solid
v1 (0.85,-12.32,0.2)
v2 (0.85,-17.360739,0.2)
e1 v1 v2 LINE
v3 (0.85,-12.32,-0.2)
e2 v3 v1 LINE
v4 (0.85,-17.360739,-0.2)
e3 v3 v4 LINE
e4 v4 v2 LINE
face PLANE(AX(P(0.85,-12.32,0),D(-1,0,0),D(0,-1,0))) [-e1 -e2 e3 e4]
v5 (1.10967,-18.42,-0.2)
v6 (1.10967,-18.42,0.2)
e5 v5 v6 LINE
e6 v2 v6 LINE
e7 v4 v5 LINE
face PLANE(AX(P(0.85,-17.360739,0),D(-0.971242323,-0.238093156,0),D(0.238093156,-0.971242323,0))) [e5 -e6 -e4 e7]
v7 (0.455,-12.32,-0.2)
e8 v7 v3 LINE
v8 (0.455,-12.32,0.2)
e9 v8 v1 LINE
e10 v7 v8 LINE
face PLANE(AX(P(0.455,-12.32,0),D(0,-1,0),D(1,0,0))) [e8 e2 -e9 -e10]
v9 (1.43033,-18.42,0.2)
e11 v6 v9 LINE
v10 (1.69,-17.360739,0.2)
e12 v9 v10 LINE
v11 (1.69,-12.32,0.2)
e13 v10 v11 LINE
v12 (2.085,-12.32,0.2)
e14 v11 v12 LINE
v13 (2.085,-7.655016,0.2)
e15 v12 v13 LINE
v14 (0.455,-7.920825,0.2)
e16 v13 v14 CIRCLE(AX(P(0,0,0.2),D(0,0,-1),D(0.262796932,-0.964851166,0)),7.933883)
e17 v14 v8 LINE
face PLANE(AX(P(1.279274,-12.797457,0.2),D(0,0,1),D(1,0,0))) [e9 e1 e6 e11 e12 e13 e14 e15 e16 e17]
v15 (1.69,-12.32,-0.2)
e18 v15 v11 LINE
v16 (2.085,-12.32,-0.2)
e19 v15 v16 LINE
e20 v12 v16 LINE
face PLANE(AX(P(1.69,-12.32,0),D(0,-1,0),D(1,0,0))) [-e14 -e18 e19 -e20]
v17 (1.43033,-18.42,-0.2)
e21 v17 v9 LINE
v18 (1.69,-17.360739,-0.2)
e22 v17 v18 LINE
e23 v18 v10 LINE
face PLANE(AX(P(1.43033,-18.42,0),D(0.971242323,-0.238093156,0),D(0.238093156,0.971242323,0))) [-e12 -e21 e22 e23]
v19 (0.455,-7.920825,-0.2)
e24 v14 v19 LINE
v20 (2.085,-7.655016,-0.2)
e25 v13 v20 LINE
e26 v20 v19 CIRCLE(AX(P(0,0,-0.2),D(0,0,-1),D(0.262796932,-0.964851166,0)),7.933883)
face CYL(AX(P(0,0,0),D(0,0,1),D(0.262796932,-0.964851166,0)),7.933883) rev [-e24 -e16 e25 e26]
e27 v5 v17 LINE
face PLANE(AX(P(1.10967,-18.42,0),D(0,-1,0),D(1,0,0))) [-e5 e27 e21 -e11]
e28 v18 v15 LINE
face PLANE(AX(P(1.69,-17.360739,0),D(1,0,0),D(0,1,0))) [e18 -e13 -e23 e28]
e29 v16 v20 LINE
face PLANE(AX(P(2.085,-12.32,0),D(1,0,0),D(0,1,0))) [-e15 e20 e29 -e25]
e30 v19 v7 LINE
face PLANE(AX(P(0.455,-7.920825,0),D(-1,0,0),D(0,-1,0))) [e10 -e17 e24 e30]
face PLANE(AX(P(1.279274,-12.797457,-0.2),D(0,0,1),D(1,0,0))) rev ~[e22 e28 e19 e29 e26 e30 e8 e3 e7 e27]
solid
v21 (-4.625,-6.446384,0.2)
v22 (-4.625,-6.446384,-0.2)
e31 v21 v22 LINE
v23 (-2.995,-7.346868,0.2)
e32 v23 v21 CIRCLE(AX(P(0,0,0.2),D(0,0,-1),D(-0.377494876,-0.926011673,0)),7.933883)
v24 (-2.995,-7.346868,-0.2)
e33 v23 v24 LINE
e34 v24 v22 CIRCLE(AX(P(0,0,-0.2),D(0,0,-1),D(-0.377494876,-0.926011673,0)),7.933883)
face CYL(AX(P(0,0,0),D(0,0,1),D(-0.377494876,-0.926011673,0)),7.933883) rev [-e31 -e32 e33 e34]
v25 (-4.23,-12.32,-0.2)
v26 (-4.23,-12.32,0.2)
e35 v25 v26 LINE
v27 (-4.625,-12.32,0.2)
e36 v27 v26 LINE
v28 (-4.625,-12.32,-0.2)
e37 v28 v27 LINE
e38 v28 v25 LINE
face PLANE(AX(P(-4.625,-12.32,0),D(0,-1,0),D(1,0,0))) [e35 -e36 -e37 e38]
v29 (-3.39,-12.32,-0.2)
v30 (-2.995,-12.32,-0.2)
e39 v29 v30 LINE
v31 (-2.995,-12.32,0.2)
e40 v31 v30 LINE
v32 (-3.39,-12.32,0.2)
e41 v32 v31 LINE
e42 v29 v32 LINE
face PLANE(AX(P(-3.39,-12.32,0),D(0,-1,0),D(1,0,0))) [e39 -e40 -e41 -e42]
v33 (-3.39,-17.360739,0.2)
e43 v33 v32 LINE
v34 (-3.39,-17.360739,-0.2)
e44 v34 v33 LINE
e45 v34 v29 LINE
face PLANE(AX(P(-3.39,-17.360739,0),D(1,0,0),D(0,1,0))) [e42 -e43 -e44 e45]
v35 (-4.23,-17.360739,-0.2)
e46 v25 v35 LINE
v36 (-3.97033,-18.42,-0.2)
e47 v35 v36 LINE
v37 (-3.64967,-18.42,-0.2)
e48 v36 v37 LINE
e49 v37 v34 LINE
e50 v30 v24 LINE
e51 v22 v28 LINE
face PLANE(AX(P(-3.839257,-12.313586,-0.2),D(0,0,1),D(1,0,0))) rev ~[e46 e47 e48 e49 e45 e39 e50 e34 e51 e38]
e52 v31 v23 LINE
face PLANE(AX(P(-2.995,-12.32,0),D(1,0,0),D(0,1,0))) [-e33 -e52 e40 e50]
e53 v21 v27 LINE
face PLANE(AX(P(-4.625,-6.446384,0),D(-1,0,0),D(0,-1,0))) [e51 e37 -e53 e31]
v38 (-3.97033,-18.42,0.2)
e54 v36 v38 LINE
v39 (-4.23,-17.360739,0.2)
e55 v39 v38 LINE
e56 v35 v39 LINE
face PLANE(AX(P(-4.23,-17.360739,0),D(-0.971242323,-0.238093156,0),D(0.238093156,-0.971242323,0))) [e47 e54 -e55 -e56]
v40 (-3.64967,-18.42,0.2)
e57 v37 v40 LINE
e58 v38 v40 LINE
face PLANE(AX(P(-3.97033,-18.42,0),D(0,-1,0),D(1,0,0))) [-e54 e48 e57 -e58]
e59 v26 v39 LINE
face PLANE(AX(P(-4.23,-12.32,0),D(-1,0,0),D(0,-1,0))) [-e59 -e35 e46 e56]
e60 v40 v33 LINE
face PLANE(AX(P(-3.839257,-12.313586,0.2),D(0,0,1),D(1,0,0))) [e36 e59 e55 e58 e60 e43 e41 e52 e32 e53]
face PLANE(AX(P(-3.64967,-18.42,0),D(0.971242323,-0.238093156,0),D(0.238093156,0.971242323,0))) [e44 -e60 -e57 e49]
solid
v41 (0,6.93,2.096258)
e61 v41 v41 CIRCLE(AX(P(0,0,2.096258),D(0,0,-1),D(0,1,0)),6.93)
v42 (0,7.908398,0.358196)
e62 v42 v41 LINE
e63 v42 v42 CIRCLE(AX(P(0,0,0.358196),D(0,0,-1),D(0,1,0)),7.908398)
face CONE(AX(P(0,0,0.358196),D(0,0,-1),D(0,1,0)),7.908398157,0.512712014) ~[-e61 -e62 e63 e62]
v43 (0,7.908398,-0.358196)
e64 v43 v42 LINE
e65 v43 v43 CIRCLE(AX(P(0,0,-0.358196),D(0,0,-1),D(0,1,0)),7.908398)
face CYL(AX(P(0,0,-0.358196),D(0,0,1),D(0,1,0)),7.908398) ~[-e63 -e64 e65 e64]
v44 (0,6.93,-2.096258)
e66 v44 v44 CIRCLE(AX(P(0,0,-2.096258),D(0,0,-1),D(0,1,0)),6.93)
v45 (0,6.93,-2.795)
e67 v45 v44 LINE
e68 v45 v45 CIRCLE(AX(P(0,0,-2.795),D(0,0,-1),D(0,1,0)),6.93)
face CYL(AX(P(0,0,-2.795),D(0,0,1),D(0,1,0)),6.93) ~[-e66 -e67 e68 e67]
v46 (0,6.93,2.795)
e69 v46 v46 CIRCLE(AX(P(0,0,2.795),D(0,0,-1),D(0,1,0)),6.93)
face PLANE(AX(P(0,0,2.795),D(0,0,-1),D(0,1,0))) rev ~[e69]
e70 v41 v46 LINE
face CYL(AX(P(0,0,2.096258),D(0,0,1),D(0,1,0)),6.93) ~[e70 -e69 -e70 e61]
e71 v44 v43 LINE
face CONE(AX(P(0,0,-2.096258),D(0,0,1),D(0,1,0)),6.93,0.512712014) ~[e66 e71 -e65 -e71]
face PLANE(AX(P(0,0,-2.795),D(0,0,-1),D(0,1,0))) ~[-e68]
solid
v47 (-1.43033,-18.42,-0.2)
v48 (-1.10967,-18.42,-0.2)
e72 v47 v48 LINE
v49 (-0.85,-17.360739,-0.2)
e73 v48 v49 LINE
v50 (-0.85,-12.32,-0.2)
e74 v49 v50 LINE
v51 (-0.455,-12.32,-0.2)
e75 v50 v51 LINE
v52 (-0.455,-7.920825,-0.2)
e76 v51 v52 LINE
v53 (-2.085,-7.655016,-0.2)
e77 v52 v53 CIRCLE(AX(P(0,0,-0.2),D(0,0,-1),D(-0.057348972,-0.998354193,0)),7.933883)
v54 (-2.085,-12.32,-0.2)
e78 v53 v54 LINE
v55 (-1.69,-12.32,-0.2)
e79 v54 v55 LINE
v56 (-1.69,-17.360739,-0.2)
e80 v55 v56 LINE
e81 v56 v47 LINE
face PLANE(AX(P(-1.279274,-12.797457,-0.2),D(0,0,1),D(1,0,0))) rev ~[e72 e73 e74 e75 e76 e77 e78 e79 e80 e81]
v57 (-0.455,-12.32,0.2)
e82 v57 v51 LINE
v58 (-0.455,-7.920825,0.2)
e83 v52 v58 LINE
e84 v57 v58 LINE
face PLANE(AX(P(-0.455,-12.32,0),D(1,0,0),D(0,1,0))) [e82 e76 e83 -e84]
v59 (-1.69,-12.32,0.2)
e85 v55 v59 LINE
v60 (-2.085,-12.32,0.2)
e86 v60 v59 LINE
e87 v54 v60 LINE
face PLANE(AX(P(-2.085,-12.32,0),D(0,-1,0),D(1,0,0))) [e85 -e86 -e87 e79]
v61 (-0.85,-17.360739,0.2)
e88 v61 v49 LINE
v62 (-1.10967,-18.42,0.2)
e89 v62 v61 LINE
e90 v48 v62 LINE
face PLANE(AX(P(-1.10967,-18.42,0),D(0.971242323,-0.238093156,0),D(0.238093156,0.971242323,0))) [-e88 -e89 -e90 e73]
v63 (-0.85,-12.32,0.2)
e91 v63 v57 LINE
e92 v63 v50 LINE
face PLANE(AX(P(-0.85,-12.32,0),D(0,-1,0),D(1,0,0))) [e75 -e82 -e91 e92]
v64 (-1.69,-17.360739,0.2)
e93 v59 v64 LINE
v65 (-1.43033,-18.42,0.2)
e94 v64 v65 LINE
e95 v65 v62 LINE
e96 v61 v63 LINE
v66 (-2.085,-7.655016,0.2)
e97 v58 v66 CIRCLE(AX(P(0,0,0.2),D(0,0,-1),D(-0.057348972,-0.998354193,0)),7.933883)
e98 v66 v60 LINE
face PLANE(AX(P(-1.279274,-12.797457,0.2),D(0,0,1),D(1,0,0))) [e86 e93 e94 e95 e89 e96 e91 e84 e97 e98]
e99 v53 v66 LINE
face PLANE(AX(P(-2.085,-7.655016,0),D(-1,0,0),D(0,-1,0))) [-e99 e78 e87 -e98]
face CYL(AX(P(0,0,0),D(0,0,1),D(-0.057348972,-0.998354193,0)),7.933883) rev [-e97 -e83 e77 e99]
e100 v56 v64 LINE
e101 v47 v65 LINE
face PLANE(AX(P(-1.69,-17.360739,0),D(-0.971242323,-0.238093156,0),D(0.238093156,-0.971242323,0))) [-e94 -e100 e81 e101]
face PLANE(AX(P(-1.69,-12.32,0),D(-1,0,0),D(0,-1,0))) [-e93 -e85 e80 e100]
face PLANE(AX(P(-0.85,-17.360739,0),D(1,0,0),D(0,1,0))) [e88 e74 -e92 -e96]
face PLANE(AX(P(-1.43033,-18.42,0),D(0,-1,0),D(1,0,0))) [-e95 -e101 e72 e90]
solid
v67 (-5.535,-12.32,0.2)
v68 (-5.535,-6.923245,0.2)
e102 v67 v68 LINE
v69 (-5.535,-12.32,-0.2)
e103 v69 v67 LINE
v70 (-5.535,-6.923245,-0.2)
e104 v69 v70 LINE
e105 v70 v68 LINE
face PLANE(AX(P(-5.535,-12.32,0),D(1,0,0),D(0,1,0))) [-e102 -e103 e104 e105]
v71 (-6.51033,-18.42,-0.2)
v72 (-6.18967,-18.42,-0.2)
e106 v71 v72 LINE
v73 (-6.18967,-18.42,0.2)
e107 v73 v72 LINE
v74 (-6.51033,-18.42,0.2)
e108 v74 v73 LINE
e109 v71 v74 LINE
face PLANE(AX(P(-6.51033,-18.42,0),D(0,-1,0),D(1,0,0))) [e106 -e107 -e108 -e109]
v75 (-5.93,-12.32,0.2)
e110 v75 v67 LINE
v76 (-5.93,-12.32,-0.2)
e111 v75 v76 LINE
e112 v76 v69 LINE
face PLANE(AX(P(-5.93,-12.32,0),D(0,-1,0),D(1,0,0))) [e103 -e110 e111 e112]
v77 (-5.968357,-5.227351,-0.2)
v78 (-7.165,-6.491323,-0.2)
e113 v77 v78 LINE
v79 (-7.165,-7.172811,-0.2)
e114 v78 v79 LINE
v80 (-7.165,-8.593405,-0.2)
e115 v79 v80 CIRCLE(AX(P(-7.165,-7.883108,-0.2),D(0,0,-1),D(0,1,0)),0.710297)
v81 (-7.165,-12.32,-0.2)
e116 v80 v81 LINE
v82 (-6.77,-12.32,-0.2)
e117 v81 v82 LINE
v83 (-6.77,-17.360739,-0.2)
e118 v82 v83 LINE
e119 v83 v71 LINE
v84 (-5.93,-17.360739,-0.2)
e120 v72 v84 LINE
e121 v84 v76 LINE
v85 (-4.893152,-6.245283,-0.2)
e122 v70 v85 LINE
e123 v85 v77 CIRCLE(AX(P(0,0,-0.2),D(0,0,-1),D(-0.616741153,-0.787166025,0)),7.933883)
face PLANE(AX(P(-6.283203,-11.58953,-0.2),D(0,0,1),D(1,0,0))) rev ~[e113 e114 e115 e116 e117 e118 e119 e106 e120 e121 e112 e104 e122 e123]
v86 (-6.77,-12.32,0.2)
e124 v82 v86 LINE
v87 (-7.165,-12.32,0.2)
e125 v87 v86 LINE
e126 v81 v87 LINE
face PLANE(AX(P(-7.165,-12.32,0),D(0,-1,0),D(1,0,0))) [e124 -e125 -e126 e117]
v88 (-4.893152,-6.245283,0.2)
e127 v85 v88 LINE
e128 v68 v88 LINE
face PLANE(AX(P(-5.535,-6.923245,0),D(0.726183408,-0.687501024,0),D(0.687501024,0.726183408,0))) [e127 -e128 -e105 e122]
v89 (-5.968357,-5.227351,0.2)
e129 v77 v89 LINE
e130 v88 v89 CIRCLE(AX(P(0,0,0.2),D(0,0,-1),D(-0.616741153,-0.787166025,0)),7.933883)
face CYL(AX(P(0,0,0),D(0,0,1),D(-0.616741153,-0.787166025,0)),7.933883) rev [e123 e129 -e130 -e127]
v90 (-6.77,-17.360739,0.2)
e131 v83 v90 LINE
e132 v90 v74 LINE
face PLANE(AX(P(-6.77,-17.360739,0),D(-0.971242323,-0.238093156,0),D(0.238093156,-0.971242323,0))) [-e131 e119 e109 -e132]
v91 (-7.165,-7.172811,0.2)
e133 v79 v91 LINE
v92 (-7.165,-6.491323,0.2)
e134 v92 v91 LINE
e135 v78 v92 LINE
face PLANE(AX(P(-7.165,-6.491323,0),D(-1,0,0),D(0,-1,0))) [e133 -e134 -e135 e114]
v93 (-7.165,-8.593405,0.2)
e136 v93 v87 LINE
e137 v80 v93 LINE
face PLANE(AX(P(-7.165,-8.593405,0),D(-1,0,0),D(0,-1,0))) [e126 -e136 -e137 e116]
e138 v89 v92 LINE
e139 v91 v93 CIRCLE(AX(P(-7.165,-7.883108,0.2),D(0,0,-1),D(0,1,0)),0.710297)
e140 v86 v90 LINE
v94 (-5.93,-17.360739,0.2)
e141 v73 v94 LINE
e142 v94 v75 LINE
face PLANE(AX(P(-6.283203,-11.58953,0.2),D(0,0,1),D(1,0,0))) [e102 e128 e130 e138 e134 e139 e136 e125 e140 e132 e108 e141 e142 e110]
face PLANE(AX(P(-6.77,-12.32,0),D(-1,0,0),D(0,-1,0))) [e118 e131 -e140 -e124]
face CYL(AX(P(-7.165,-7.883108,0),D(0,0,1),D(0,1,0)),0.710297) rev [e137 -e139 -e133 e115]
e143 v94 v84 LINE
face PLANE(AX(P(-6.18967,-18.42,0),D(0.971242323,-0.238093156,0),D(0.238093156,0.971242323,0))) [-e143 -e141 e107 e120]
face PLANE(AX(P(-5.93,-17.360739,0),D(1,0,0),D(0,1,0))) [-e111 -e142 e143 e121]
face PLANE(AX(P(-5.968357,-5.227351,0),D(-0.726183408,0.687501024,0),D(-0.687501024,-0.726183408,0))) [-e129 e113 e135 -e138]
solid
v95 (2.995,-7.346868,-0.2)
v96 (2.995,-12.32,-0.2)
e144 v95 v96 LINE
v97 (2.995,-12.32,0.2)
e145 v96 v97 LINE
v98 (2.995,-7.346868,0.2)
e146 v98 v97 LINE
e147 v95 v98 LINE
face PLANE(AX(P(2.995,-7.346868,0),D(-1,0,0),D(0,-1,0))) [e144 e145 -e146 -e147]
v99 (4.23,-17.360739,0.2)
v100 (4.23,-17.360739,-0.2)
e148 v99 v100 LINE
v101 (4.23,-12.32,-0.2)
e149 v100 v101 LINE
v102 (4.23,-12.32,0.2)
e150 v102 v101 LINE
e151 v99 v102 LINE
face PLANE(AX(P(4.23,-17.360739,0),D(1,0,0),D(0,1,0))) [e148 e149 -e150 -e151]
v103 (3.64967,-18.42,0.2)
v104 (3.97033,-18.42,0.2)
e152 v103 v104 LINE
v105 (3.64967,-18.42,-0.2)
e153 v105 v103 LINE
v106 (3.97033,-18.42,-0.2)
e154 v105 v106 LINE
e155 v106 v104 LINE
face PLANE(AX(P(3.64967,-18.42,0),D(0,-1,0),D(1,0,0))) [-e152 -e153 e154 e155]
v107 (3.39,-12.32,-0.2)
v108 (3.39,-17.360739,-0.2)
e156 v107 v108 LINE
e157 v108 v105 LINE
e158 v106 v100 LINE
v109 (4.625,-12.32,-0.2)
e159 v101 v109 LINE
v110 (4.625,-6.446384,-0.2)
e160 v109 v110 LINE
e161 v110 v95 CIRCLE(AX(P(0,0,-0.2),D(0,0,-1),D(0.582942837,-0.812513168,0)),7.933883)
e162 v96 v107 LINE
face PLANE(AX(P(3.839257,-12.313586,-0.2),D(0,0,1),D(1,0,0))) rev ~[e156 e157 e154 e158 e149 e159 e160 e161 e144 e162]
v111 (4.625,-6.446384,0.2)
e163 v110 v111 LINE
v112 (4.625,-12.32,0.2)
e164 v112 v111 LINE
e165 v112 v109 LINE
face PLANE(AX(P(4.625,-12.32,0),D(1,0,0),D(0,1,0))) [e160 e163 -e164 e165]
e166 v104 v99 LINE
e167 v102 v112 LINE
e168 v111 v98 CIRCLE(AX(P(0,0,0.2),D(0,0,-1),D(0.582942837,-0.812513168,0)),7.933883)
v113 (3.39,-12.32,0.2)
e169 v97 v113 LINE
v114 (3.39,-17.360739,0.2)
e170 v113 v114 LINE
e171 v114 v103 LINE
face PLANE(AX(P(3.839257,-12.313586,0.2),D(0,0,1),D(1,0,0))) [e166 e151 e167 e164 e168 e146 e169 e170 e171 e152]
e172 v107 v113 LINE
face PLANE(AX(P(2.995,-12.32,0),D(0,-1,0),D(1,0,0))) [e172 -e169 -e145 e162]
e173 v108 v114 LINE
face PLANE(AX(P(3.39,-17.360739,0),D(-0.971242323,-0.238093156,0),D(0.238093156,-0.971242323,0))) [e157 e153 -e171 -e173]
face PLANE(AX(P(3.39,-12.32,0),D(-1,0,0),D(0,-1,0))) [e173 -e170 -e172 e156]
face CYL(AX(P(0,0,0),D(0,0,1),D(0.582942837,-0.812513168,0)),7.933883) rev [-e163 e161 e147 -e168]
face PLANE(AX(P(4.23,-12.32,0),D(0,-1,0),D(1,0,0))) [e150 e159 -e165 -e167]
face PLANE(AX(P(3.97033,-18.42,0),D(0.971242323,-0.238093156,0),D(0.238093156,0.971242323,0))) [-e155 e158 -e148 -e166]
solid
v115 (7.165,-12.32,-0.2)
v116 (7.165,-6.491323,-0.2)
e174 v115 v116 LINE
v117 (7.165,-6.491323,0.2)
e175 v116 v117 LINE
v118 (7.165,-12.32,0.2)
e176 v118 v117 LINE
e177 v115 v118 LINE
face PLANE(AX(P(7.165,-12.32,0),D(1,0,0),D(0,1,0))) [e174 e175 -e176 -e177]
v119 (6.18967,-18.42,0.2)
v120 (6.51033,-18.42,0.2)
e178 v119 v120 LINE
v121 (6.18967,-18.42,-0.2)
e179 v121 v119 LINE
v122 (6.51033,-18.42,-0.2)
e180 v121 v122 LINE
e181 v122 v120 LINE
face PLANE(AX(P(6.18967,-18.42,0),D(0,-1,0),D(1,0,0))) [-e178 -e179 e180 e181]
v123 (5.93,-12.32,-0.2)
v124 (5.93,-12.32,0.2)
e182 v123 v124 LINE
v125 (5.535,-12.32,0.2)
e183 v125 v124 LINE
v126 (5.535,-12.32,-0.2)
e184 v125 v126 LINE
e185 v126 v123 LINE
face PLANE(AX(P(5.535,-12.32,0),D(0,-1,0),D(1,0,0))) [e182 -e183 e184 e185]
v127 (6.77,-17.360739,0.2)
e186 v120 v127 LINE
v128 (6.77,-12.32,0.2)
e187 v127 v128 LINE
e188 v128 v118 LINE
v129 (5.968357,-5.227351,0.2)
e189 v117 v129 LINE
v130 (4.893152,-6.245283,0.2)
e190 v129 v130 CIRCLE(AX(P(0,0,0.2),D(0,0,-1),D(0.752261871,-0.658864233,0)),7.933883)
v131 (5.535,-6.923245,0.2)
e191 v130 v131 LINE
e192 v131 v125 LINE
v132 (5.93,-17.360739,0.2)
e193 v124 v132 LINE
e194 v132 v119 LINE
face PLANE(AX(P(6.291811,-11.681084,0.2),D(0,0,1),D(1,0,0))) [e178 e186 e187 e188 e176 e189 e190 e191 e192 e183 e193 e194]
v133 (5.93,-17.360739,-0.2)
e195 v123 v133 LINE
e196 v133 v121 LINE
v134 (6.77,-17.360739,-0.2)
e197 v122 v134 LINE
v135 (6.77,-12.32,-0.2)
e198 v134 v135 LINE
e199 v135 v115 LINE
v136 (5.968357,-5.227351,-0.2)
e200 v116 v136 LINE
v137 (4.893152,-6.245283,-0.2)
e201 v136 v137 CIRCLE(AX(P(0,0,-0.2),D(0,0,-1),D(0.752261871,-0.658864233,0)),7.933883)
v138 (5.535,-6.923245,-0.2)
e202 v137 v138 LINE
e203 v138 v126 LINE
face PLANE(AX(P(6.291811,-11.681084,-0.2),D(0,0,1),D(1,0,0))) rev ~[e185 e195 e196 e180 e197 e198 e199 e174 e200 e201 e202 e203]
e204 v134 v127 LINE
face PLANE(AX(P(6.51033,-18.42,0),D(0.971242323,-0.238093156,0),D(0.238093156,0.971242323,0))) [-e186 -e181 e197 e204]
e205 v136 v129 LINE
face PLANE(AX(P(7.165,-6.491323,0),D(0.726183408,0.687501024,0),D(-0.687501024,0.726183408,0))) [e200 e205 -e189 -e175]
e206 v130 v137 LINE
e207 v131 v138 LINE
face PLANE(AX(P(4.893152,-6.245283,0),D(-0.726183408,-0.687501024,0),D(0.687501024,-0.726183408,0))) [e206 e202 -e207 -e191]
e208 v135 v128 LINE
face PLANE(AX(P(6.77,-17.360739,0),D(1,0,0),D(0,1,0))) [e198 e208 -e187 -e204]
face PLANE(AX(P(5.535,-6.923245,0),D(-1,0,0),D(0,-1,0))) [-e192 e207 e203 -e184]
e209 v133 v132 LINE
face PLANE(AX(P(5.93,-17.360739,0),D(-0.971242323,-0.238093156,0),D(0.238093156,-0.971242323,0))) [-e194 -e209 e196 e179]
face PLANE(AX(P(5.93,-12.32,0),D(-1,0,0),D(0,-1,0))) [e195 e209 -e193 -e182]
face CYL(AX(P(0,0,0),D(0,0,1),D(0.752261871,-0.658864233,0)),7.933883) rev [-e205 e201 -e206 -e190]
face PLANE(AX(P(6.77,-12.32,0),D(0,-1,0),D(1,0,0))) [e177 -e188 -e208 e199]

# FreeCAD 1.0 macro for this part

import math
import FreeCAD as App
import Part
import Sketcher

V = App.Vector

doc = App.newDocument("Part")
body = doc.addObject("PartDesign::Body", "Body")

# Sketch on XY plane
sketch1 = doc.addObject("Sketcher::SketchObject", "Sketch")
body.addObject(sketch1)
sketch1.AttachmentSupport = (doc.XY_Plane, [""])
sketch1.MapMode = "FlatFace"
sketch1.addGeometry([
    Part.LineSegment(V(-5.93, -12.32, 0), V(-5.54, -12.32, 0)),  # 0
    Part.LineSegment(V(-5.54, -12.32, 0), V(-5.54, -6.92, 0)),  # 1
    Part.LineSegment(V(-5.54, -6.92, 0), V(-4.89, -6.25, 0)),  # 2
    Part.ArcOfCircle(Part.Circle(V(0, 0, 0), V(0, 0, 1), 7.93), math.radians(-138.79), math.radians(-128.08)),  # 3
    Part.LineSegment(V(-5.97, -5.23, 0), V(-7.17, -6.49, 0)),  # 4
    Part.LineSegment(V(-7.17, -6.49, 0), V(-7.17, -7.17, 0)),  # 5
    Part.ArcOfCircle(Part.Circle(V(-7.17, -7.88, 0), V(0, 0, 1), 0.71), math.radians(-90), math.radians(90)),  # 6
    Part.LineSegment(V(-7.17, -8.59, 0), V(-7.17, -12.32, 0)),  # 7
    Part.LineSegment(V(-7.17, -12.32, 0), V(-6.77, -12.32, 0)),  # 8
    Part.LineSegment(V(-6.77, -12.32, 0), V(-6.77, -17.36, 0)),  # 9
    Part.LineSegment(V(-6.77, -17.36, 0), V(-6.51, -18.42, 0)),  # 10
    Part.LineSegment(V(-6.51, -18.42, 0), V(-6.19, -18.42, 0)),  # 11
    Part.LineSegment(V(-6.19, -18.42, 0), V(-5.93, -17.36, 0)),  # 12
    Part.LineSegment(V(-5.93, -17.36, 0), V(-5.93, -12.32, 0)),  # 13
], False)
sketch1.addConstraint([
    Sketcher.Constraint("Coincident", 0, 2, 1, 1),
    Sketcher.Constraint("Coincident", 1, 2, 2, 1),
    Sketcher.Constraint("Coincident", 2, 2, 3, 2),
    Sketcher.Constraint("Coincident", 3, 1, 4, 1),
    Sketcher.Constraint("Coincident", 4, 2, 5, 1),
    Sketcher.Constraint("Coincident", 5, 2, 6, 2),
    Sketcher.Constraint("Coincident", 6, 1, 7, 1),
    Sketcher.Constraint("Coincident", 7, 2, 8, 1),
    Sketcher.Constraint("Coincident", 8, 2, 9, 1),
    Sketcher.Constraint("Coincident", 9, 2, 10, 1),
    Sketcher.Constraint("Coincident", 10, 2, 11, 1),
    Sketcher.Constraint("Coincident", 11, 2, 12, 1),
    Sketcher.Constraint("Coincident", 12, 2, 13, 1),
    Sketcher.Constraint("Coincident", 13, 2, 0, 1),
    Sketcher.Constraint("Horizontal", 0),
    Sketcher.Constraint("Vertical", 1),
    Sketcher.Constraint("Vertical", 5),
    Sketcher.Constraint("Vertical", 7),
    Sketcher.Constraint("Horizontal", 8),
    Sketcher.Constraint("Vertical", 9),
    Sketcher.Constraint("Horizontal", 11),
    Sketcher.Constraint("Vertical", 13),
    Sketcher.Constraint("Coincident", 3, 3, -1, 1),
    Sketcher.Constraint("Parallel", 2, 4),
    Sketcher.Constraint("Horizontal", 0, 2, 7, 2),
    Sketcher.Constraint("Horizontal", 9, 2, 12, 2),
    Sketcher.Constraint("Vertical", 6, 3, 4, 2),
    Sketcher.Constraint("Vertical", 5, 2, 6, 1),
    Sketcher.Constraint("Equal", 0, 8),
    Sketcher.Constraint("Equal", 10, 12),
    Sketcher.Constraint("DistanceY", 10, 2, 8, 2, 6.1),
    Sketcher.Constraint("DistanceX", 0, 1, 0, 2, 0.395),
    Sketcher.Constraint("DistanceY", 0, 2, -1, 1, 12.32),
    Sketcher.Constraint("DistanceX", 8, 2, -1, 1, 6.77),
    Sketcher.Constraint("DistanceX", 12, 2, -1, 1, 5.93),
    Sketcher.Constraint("Radius", 3, 7.933883),
    Sketcher.Constraint("Radius", 6, 0.710297),
    Sketcher.Constraint("DistanceX", 11, 1, 11, 2, 0.320659),
    Sketcher.Constraint("DistanceY", 9, 2, 9, 1, 5.040739),
    Sketcher.Constraint("Distance", 4, 1.740569),
    Sketcher.Constraint("DistanceY", 1, 1, 1, 2, 5.396755),
    Sketcher.Constraint("DistanceY", 5, 2, 5, 1, 0.681488),
    Sketcher.Constraint("DistanceY", 7, 2, 7, 1, 3.726595),
])
pad1 = doc.addObject("PartDesign::Pad", "Pad")
body.addObject(pad1)
pad1.Profile = sketch1
pad1.Type = "TwoLengths"
pad1.Length = 0.2
pad1.Length2 = 0.2
body2 = doc.addObject("PartDesign::Body", "Body001")

# Sketch on XY plane
sketch2 = doc.addObject("Sketcher::SketchObject", "Sketch001")
body2.addObject(sketch2)
sketch2.AttachmentSupport = (doc.getObject("XY_Plane001"), [""])
sketch2.MapMode = "FlatFace"
sketch2.addGeometry([
    Part.LineSegment(V(-4.62, -6.45, 0), V(-4.62, -12.32, 0)),  # 0
    Part.LineSegment(V(-4.62, -12.32, 0), V(-4.23, -12.32, 0)),  # 1
    Part.LineSegment(V(-4.23, -12.32, 0), V(-4.23, -17.36, 0)),  # 2
    Part.LineSegment(V(-4.23, -17.36, 0), V(-3.97, -18.42, 0)),  # 3
    Part.LineSegment(V(-3.97, -18.42, 0), V(-3.65, -18.42, 0)),  # 4
    Part.LineSegment(V(-3.65, -18.42, 0), V(-3.39, -17.36, 0)),  # 5
    Part.LineSegment(V(-3.39, -17.36, 0), V(-3.39, -12.32, 0)),  # 6
    Part.LineSegment(V(-3.39, -12.32, 0), V(-3, -12.32, 0)),  # 7
    Part.LineSegment(V(-3, -12.32, 0), V(-3, -7.35, 0)),  # 8
    Part.ArcOfCircle(Part.Circle(V(0, 0, 0), V(0, 0, 1), 7.93), math.radians(-125.66), math.radians(-112.18)),  # 9
], False)
sketch2.addConstraint([
    Sketcher.Constraint("Coincident", 0, 2, 1, 1),
    Sketcher.Constraint("Coincident", 1, 2, 2, 1),
    Sketcher.Constraint("Coincident", 2, 2, 3, 1),
    Sketcher.Constraint("Coincident", 3, 2, 4, 1),
    Sketcher.Constraint("Coincident", 4, 2, 5, 1),
    Sketcher.Constraint("Coincident", 5, 2, 6, 1),
    Sketcher.Constraint("Coincident", 6, 2, 7, 1),
    Sketcher.Constraint("Coincident", 7, 2, 8, 1),
    Sketcher.Constraint("Coincident", 8, 2, 9, 2),
    Sketcher.Constraint("Coincident", 9, 1, 0, 1),
    Sketcher.Constraint("Vertical", 0),
    Sketcher.Constraint("Horizontal", 1),
    Sketcher.Constraint("Vertical", 2),
    Sketcher.Constraint("Horizontal", 4),
    Sketcher.Constraint("Vertical", 6),
    Sketcher.Constraint("Horizontal", 7),
    Sketcher.Constraint("Vertical", 8),
    Sketcher.Constraint("Coincident", 9, 3, -1, 1),
    Sketcher.Constraint("Horizontal", 2, 2, 5, 2),
    Sketcher.Constraint("Horizontal", 1, 2, 6, 2),
    Sketcher.Constraint("Equal", 1, 7),
    Sketcher.Constraint("Equal", 3, 5),
    Sketcher.Constraint("DistanceY", 3, 2, 1, 2, 6.1),
    Sketcher.Constraint("DistanceX", 1, 1, 1, 2, 0.395),
    Sketcher.Constraint("DistanceY", 0, 2, -1, 1, 12.32),
    Sketcher.Constraint("DistanceX", 1, 2, -1, 1, 4.23),
    Sketcher.Constraint("DistanceX", 5, 2, -1, 1, 3.39),
    Sketcher.Constraint("Radius", 9, 7.933883),
    Sketcher.Constraint("DistanceX", 4, 1, 4, 2, 0.320659),
    Sketcher.Constraint("DistanceY", 2, 2, 2, 1, 5.040739),
])
pad2 = doc.addObject("PartDesign::Pad", "Pad001")
body2.addObject(pad2)
pad2.Profile = sketch2
pad2.Type = "TwoLengths"
pad2.Length = 0.2
pad2.Length2 = 0.2
body3 = doc.addObject("PartDesign::Body", "Body002")

# Sketch on XY plane
sketch3 = doc.addObject("Sketcher::SketchObject", "Sketch002")
body3.addObject(sketch3)
sketch3.AttachmentSupport = (doc.getObject("XY_Plane002"), [""])
sketch3.MapMode = "FlatFace"
sketch3.addGeometry([
    Part.LineSegment(V(-0.46, -12.32, 0), V(-0.46, -7.92, 0)),  # 0
    Part.ArcOfCircle(Part.Circle(V(0, 0, 0), V(0, 0, 1), 7.93), math.radians(-105.24), math.radians(-93.29)),  # 1
    Part.LineSegment(V(-2.08, -7.66, 0), V(-2.08, -12.32, 0)),  # 2
    Part.LineSegment(V(-2.08, -12.32, 0), V(-1.69, -12.32, 0)),  # 3
    Part.LineSegment(V(-1.69, -12.32, 0), V(-1.69, -17.36, 0)),  # 4
    Part.LineSegment(V(-1.69, -17.36, 0), V(-1.43, -18.42, 0)),  # 5
    Part.LineSegment(V(-1.43, -18.42, 0), V(-1.11, -18.42, 0)),  # 6
    Part.LineSegment(V(-1.11, -18.42, 0), V(-0.85, -17.36, 0)),  # 7
    Part.LineSegment(V(-0.85, -17.36, 0), V(-0.85, -12.32, 0)),  # 8
    Part.LineSegment(V(-0.85, -12.32, 0), V(-0.46, -12.32, 0)),  # 9
], False)
sketch3.addConstraint([
    Sketcher.Constraint("Coincident", 0, 2, 1, 2),
    Sketcher.Constraint("Coincident", 1, 1, 2, 1),
    Sketcher.Constraint("Coincident", 2, 2, 3, 1),
    Sketcher.Constraint("Coincident", 3, 2, 4, 1),
    Sketcher.Constraint("Coincident", 4, 2, 5, 1),
    Sketcher.Constraint("Coincident", 5, 2, 6, 1),
    Sketcher.Constraint("Coincident", 6, 2, 7, 1),
    Sketcher.Constraint("Coincident", 7, 2, 8, 1),
    Sketcher.Constraint("Coincident", 8, 2, 9, 1),
    Sketcher.Constraint("Coincident", 9, 2, 0, 1),
    Sketcher.Constraint("Vertical", 0),
    Sketcher.Constraint("Vertical", 2),
    Sketcher.Constraint("Horizontal", 3),
    Sketcher.Constraint("Vertical", 4),
    Sketcher.Constraint("Horizontal", 6),
    Sketcher.Constraint("Vertical", 8),
    Sketcher.Constraint("Horizontal", 9),
    Sketcher.Constraint("Coincident", 1, 3, -1, 1),
    Sketcher.Constraint("Horizontal", 4, 2, 7, 2),
    Sketcher.Constraint("Horizontal", 3, 2, 8, 2),
    Sketcher.Constraint("Equal", 3, 9),
    Sketcher.Constraint("Equal", 5, 7),
    Sketcher.Constraint("DistanceY", 5, 2, 3, 2, 6.1),
    Sketcher.Constraint("DistanceX", 3, 1, 3, 2, 0.395),
    Sketcher.Constraint("DistanceY", 2, 2, -1, 1, 12.32),
    Sketcher.Constraint("DistanceX", 3, 2, -1, 1, 1.69),
    Sketcher.Constraint("DistanceX", 7, 2, -1, 1, 0.85),
    Sketcher.Constraint("Radius", 1, 7.933883),
    Sketcher.Constraint("DistanceX", 6, 1, 6, 2, 0.320659),
    Sketcher.Constraint("DistanceY", 4, 2, 4, 1, 5.040739),
])
pad3 = doc.addObject("PartDesign::Pad", "Pad002")
body3.addObject(pad3)
pad3.Profile = sketch3
pad3.Type = "TwoLengths"
pad3.Length = 0.2
pad3.Length2 = 0.2
body4 = doc.addObject("PartDesign::Body", "Body003")

# Sketch on XY plane
sketch4 = doc.addObject("Sketcher::SketchObject", "Sketch003")
body4.addObject(sketch4)
sketch4.AttachmentSupport = (doc.getObject("XY_Plane003"), [""])
sketch4.MapMode = "FlatFace"
sketch4.addGeometry([
    Part.LineSegment(V(4.62, -12.32, 0), V(4.62, -6.45, 0)),  # 0
    Part.ArcOfCircle(Part.Circle(V(0, 0, 0), V(0, 0, 1), 7.93), math.radians(-67.82), math.radians(-54.34)),  # 1
    Part.LineSegment(V(3, -7.35, 0), V(3, -12.32, 0)),  # 2
    Part.LineSegment(V(3, -12.32, 0), V(3.39, -12.32, 0)),  # 3
    Part.LineSegment(V(3.39, -12.32, 0), V(3.39, -17.36, 0)),  # 4
    Part.LineSegment(V(3.39, -17.36, 0), V(3.65, -18.42, 0)),  # 5
    Part.LineSegment(V(3.65, -18.42, 0), V(3.97, -18.42, 0)),  # 6
    Part.LineSegment(V(3.97, -18.42, 0), V(4.23, -17.36, 0)),  # 7
    Part.LineSegment(V(4.23, -17.36, 0), V(4.23, -12.32, 0)),  # 8
    Part.LineSegment(V(4.23, -12.32, 0), V(4.62, -12.32, 0)),  # 9
], False)
sketch4.addConstraint([
    Sketcher.Constraint("Coincident", 0, 2, 1, 2),
    Sketcher.Constraint("Coincident", 1, 1, 2, 1),
    Sketcher.Constraint("Coincident", 2, 2, 3, 1),
    Sketcher.Constraint("Coincident", 3, 2, 4, 1),
    Sketcher.Constraint("Coincident", 4, 2, 5, 1),
    Sketcher.Constraint("Coincident", 5, 2, 6, 1),
    Sketcher.Constraint("Coincident", 6, 2, 7, 1),
    Sketcher.Constraint("Coincident", 7, 2, 8, 1),
    Sketcher.Constraint("Coincident", 8, 2, 9, 1),
    Sketcher.Constraint("Coincident", 9, 2, 0, 1),
    Sketcher.Constraint("Vertical", 0),
    Sketcher.Constraint("Vertical", 2),
    Sketcher.Constraint("Horizontal", 3),
    Sketcher.Constraint("Vertical", 4),
    Sketcher.Constraint("Horizontal", 6),
    Sketcher.Constraint("Vertical", 8),
    Sketcher.Constraint("Horizontal", 9),
    Sketcher.Constraint("Coincident", 1, 3, -1, 1),
    Sketcher.Constraint("Horizontal", 4, 2, 7, 2),
    Sketcher.Constraint("Horizontal", 3, 2, 8, 2),
    Sketcher.Constraint("Equal", 3, 9),
    Sketcher.Constraint("Equal", 5, 7),
    Sketcher.Constraint("DistanceY", 5, 2, 3, 2, 6.1),
    Sketcher.Constraint("DistanceX", 3, 1, 3, 2, 0.395),
    Sketcher.Constraint("DistanceY", 2, 2, -1, 1, 12.32),
    Sketcher.Constraint("DistanceX", -1, 1, 3, 2, 3.39),
    Sketcher.Constraint("DistanceX", -1, 1, 7, 2, 4.23),
    Sketcher.Constraint("Radius", 1, 7.933883),
    Sketcher.Constraint("DistanceX", 6, 1, 6, 2, 0.320659),
    Sketcher.Constraint("DistanceY", 4, 2, 4, 1, 5.040739),
])
pad4 = doc.addObject("PartDesign::Pad", "Pad003")
body4.addObject(pad4)
pad4.Profile = sketch4
pad4.Type = "TwoLengths"
pad4.Length = 0.2
pad4.Length2 = 0.2
body5 = doc.addObject("PartDesign::Body", "Body004")

# Sketch on XY plane
sketch5 = doc.addObject("Sketcher::SketchObject", "Sketch004")
body5.addObject(sketch5)
sketch5.AttachmentSupport = (doc.getObject("XY_Plane004"), [""])
sketch5.MapMode = "FlatFace"
sketch5.addGeometry([
    Part.LineSegment(V(0.46, -7.92, 0), V(0.46, -12.32, 0)),  # 0
    Part.LineSegment(V(0.46, -12.32, 0), V(0.85, -12.32, 0)),  # 1
    Part.LineSegment(V(0.85, -12.32, 0), V(0.85, -17.36, 0)),  # 2
    Part.LineSegment(V(0.85, -17.36, 0), V(1.11, -18.42, 0)),  # 3
    Part.LineSegment(V(1.11, -18.42, 0), V(1.43, -18.42, 0)),  # 4
    Part.LineSegment(V(1.43, -18.42, 0), V(1.69, -17.36, 0)),  # 5
    Part.LineSegment(V(1.69, -17.36, 0), V(1.69, -12.32, 0)),  # 6
    Part.LineSegment(V(1.69, -12.32, 0), V(2.08, -12.32, 0)),  # 7
    Part.LineSegment(V(2.08, -12.32, 0), V(2.08, -7.66, 0)),  # 8
    Part.ArcOfCircle(Part.Circle(V(0, 0, 0), V(0, 0, 1), 7.93), math.radians(-86.71), math.radians(-74.76)),  # 9
], False)
sketch5.addConstraint([
    Sketcher.Constraint("Coincident", 0, 2, 1, 1),
    Sketcher.Constraint("Coincident", 1, 2, 2, 1),
    Sketcher.Constraint("Coincident", 2, 2, 3, 1),
    Sketcher.Constraint("Coincident", 3, 2, 4, 1),
    Sketcher.Constraint("Coincident", 4, 2, 5, 1),
    Sketcher.Constraint("Coincident", 5, 2, 6, 1),
    Sketcher.Constraint("Coincident", 6, 2, 7, 1),
    Sketcher.Constraint("Coincident", 7, 2, 8, 1),
    Sketcher.Constraint("Coincident", 8, 2, 9, 2),
    Sketcher.Constraint("Coincident", 9, 1, 0, 1),
    Sketcher.Constraint("Vertical", 0),
    Sketcher.Constraint("Horizontal", 1),
    Sketcher.Constraint("Vertical", 2),
    Sketcher.Constraint("Horizontal", 4),
    Sketcher.Constraint("Vertical", 6),
    Sketcher.Constraint("Horizontal", 7),
    Sketcher.Constraint("Vertical", 8),
    Sketcher.Constraint("Coincident", 9, 3, -1, 1),
    Sketcher.Constraint("Horizontal", 2, 2, 5, 2),
    Sketcher.Constraint("Horizontal", 1, 2, 6, 2),
    Sketcher.Constraint("Equal", 1, 7),
    Sketcher.Constraint("Equal", 3, 5),
    Sketcher.Constraint("DistanceY", 3, 2, 1, 2, 6.1),
    Sketcher.Constraint("DistanceX", 1, 1, 1, 2, 0.395),
    Sketcher.Constraint("DistanceY", 0, 2, -1, 1, 12.32),
    Sketcher.Constraint("DistanceX", -1, 1, 1, 2, 0.85),
    Sketcher.Constraint("DistanceX", -1, 1, 5, 2, 1.69),
    Sketcher.Constraint("Radius", 9, 7.933883),
    Sketcher.Constraint("DistanceX", 4, 1, 4, 2, 0.320659),
    Sketcher.Constraint("DistanceY", 2, 2, 2, 1, 5.040739),
])
pad5 = doc.addObject("PartDesign::Pad", "Pad004")
body5.addObject(pad5)
pad5.Profile = sketch5
pad5.Type = "TwoLengths"
pad5.Length = 0.2
pad5.Length2 = 0.2
body6 = doc.addObject("PartDesign::Body", "Body005")

# Sketch on XY plane
sketch6 = doc.addObject("Sketcher::SketchObject", "Sketch005")
body6.addObject(sketch6)
sketch6.AttachmentSupport = (doc.getObject("XY_Plane005"), [""])
sketch6.MapMode = "FlatFace"
sketch6.addGeometry([
    Part.LineSegment(V(5.54, -12.32, 0), V(5.93, -12.32, 0)),  # 0
    Part.LineSegment(V(5.93, -12.32, 0), V(5.93, -17.36, 0)),  # 1
    Part.LineSegment(V(5.93, -17.36, 0), V(6.19, -18.42, 0)),  # 2
    Part.LineSegment(V(6.19, -18.42, 0), V(6.51, -18.42, 0)),  # 3
    Part.LineSegment(V(6.51, -18.42, 0), V(6.77, -17.36, 0)),  # 4
    Part.LineSegment(V(6.77, -17.36, 0), V(6.77, -12.32, 0)),  # 5
    Part.LineSegment(V(6.77, -12.32, 0), V(7.17, -12.32, 0)),  # 6
    Part.LineSegment(V(7.17, -12.32, 0), V(7.17, -6.49, 0)),  # 7
    Part.LineSegment(V(7.17, -6.49, 0), V(5.97, -5.23, 0)),  # 8
    Part.ArcOfCircle(Part.Circle(V(0, 0, 0), V(0, 0, 1), 7.93), math.radians(-51.92), math.radians(-41.21)),  # 9
    Part.LineSegment(V(4.89, -6.25, 0), V(5.54, -6.92, 0)),  # 10
    Part.LineSegment(V(5.54, -6.92, 0), V(5.54, -12.32, 0)),  # 11
], False)
sketch6.addConstraint([
    Sketcher.Constraint("Coincident", 0, 2, 1, 1),
    Sketcher.Constraint("Coincident", 1, 2, 2, 1),
    Sketcher.Constraint("Coincident", 2, 2, 3, 1),
    Sketcher.Constraint("Coincident", 3, 2, 4, 1),
    Sketcher.Constraint("Coincident", 4, 2, 5, 1),
    Sketcher.Constraint("Coincident", 5, 2, 6, 1),
    Sketcher.Constraint("Coincident", 6, 2, 7, 1),
    Sketcher.Constraint("Coincident", 7, 2, 8, 1),
    Sketcher.Constraint("Coincident", 8, 2, 9, 2),
    Sketcher.Constraint("Coincident", 9, 1, 10, 1),
    Sketcher.Constraint("Coincident", 10, 2, 11, 1),
    Sketcher.Constraint("Coincident", 11, 2, 0, 1),
    Sketcher.Constraint("Horizontal", 0),
    Sketcher.Constraint("Vertical", 1),
    Sketcher.Constraint("Horizontal", 3),
    Sketcher.Constraint("Vertical", 5),
    Sketcher.Constraint("Horizontal", 6),
    Sketcher.Constraint("Vertical", 7),
    Sketcher.Constraint("Vertical", 11),
    Sketcher.Constraint("Coincident", 9, 3, -1, 1),
    Sketcher.Constraint("Parallel", 8, 10),
    Sketcher.Constraint("Horizontal", 1, 2, 4, 2),
    Sketcher.Constraint("Horizontal", 0, 2, 5, 2),
    Sketcher.Constraint("Equal", 0, 6),
    Sketcher.Constraint("Equal", 2, 4),
    Sketcher.Constraint("DistanceY", 2, 2, 0, 2, 6.1),
    Sketcher.Constraint("DistanceX", 0, 1, 0, 2, 0.395),
    Sketcher.Constraint("DistanceX", -1, 1, 0, 2, 5.93),
    Sketcher.Constraint("DistanceY", 0, 2, -1, 1, 12.32),
    Sketcher.Constraint("DistanceX", -1, 1, 4, 2, 6.77),
    Sketcher.Constraint("Radius", 9, 7.933883),
    Sketcher.Constraint("DistanceX", 3, 1, 3, 2, 0.320659),
    Sketcher.Constraint("DistanceY", 1, 2, 1, 1, 5.040739),
    Sketcher.Constraint("Distance", 8, 1.740569),
    Sketcher.Constraint("DistanceY", 7, 1, 7, 2, 5.828677),
    Sketcher.Constraint("DistanceY", 11, 2, 11, 1, 5.396755),
])
pad6 = doc.addObject("PartDesign::Pad", "Pad005")
body6.addObject(pad6)
pad6.Profile = sketch6
pad6.Type = "TwoLengths"
pad6.Length = 0.2
pad6.Length2 = 0.2
body7 = doc.addObject("PartDesign::Body", "Body006")

# Sketch on YZ plane
sketch7 = doc.addObject("Sketcher::SketchObject", "Sketch006")
body7.addObject(sketch7)
sketch7.AttachmentSupport = (doc.getObject("YZ_Plane006"), [""])
sketch7.MapMode = "FlatFace"
sketch7.addGeometry([
    Part.LineSegment(V(0, -2.8, 0), V(6.9, -2.8, 0)),  # 0
    Part.LineSegment(V(6.9, -2.8, 0), V(6.9, -2.1, 0)),  # 1
    Part.LineSegment(V(6.9, -2.1, 0), V(7.9, -0.4, 0)),  # 2
    Part.LineSegment(V(7.9, -0.4, 0), V(7.9, 0.4, 0)),  # 3
    Part.LineSegment(V(7.9, 0.4, 0), V(6.9, 2.1, 0)),  # 4
    Part.LineSegment(V(6.9, 2.1, 0), V(6.9, 2.8, 0)),  # 5
    Part.LineSegment(V(6.9, 2.8, 0), V(0, 2.8, 0)),  # 6
    Part.LineSegment(V(0, 2.8, 0), V(0, -2.8, 0)),  # 7
], False)
sketch7.addConstraint([
    Sketcher.Constraint("Coincident", 0, 2, 1, 1),
    Sketcher.Constraint("Coincident", 1, 2, 2, 1),
    Sketcher.Constraint("Coincident", 2, 2, 3, 1),
    Sketcher.Constraint("Coincident", 3, 2, 4, 1),
    Sketcher.Constraint("Coincident", 4, 2, 5, 1),
    Sketcher.Constraint("Coincident", 5, 2, 6, 1),
    Sketcher.Constraint("Coincident", 6, 2, 7, 1),
    Sketcher.Constraint("Coincident", 7, 2, 0, 1),
    Sketcher.Constraint("Horizontal", 0),
    Sketcher.Constraint("Vertical", 1),
    Sketcher.Constraint("Vertical", 3),
    Sketcher.Constraint("Vertical", 5),
    Sketcher.Constraint("Horizontal", 6),
    Sketcher.Constraint("Vertical", 7),
    Sketcher.Constraint("Symmetric", 6, 2, 7, 2, -1, 1),
    Sketcher.Constraint("Symmetric", 1, 2, 4, 2, -1),
    Sketcher.Constraint("Equal", 2, 4),
    Sketcher.Constraint("DistanceX", 0, 1, 0, 2, 6.93),
    Sketcher.Constraint("DistanceY", 7, 2, 7, 1, 5.59),
    Sketcher.Constraint("DistanceY", 3, 1, 3, 2, 0.716391),
    Sketcher.Constraint("DistanceX", -1, 1, 2, 2, 7.908398),
    Sketcher.Constraint("DistanceY", 1, 1, 1, 2, 0.698742),
])
revolution = doc.addObject("PartDesign::Revolution", "Revolution")
body7.addObject(revolution)
revolution.Profile = sketch7
revolution.ReferenceAxis = (sketch7, ["V_Axis"])
revolution.Angle = 360

doc.recompute()
